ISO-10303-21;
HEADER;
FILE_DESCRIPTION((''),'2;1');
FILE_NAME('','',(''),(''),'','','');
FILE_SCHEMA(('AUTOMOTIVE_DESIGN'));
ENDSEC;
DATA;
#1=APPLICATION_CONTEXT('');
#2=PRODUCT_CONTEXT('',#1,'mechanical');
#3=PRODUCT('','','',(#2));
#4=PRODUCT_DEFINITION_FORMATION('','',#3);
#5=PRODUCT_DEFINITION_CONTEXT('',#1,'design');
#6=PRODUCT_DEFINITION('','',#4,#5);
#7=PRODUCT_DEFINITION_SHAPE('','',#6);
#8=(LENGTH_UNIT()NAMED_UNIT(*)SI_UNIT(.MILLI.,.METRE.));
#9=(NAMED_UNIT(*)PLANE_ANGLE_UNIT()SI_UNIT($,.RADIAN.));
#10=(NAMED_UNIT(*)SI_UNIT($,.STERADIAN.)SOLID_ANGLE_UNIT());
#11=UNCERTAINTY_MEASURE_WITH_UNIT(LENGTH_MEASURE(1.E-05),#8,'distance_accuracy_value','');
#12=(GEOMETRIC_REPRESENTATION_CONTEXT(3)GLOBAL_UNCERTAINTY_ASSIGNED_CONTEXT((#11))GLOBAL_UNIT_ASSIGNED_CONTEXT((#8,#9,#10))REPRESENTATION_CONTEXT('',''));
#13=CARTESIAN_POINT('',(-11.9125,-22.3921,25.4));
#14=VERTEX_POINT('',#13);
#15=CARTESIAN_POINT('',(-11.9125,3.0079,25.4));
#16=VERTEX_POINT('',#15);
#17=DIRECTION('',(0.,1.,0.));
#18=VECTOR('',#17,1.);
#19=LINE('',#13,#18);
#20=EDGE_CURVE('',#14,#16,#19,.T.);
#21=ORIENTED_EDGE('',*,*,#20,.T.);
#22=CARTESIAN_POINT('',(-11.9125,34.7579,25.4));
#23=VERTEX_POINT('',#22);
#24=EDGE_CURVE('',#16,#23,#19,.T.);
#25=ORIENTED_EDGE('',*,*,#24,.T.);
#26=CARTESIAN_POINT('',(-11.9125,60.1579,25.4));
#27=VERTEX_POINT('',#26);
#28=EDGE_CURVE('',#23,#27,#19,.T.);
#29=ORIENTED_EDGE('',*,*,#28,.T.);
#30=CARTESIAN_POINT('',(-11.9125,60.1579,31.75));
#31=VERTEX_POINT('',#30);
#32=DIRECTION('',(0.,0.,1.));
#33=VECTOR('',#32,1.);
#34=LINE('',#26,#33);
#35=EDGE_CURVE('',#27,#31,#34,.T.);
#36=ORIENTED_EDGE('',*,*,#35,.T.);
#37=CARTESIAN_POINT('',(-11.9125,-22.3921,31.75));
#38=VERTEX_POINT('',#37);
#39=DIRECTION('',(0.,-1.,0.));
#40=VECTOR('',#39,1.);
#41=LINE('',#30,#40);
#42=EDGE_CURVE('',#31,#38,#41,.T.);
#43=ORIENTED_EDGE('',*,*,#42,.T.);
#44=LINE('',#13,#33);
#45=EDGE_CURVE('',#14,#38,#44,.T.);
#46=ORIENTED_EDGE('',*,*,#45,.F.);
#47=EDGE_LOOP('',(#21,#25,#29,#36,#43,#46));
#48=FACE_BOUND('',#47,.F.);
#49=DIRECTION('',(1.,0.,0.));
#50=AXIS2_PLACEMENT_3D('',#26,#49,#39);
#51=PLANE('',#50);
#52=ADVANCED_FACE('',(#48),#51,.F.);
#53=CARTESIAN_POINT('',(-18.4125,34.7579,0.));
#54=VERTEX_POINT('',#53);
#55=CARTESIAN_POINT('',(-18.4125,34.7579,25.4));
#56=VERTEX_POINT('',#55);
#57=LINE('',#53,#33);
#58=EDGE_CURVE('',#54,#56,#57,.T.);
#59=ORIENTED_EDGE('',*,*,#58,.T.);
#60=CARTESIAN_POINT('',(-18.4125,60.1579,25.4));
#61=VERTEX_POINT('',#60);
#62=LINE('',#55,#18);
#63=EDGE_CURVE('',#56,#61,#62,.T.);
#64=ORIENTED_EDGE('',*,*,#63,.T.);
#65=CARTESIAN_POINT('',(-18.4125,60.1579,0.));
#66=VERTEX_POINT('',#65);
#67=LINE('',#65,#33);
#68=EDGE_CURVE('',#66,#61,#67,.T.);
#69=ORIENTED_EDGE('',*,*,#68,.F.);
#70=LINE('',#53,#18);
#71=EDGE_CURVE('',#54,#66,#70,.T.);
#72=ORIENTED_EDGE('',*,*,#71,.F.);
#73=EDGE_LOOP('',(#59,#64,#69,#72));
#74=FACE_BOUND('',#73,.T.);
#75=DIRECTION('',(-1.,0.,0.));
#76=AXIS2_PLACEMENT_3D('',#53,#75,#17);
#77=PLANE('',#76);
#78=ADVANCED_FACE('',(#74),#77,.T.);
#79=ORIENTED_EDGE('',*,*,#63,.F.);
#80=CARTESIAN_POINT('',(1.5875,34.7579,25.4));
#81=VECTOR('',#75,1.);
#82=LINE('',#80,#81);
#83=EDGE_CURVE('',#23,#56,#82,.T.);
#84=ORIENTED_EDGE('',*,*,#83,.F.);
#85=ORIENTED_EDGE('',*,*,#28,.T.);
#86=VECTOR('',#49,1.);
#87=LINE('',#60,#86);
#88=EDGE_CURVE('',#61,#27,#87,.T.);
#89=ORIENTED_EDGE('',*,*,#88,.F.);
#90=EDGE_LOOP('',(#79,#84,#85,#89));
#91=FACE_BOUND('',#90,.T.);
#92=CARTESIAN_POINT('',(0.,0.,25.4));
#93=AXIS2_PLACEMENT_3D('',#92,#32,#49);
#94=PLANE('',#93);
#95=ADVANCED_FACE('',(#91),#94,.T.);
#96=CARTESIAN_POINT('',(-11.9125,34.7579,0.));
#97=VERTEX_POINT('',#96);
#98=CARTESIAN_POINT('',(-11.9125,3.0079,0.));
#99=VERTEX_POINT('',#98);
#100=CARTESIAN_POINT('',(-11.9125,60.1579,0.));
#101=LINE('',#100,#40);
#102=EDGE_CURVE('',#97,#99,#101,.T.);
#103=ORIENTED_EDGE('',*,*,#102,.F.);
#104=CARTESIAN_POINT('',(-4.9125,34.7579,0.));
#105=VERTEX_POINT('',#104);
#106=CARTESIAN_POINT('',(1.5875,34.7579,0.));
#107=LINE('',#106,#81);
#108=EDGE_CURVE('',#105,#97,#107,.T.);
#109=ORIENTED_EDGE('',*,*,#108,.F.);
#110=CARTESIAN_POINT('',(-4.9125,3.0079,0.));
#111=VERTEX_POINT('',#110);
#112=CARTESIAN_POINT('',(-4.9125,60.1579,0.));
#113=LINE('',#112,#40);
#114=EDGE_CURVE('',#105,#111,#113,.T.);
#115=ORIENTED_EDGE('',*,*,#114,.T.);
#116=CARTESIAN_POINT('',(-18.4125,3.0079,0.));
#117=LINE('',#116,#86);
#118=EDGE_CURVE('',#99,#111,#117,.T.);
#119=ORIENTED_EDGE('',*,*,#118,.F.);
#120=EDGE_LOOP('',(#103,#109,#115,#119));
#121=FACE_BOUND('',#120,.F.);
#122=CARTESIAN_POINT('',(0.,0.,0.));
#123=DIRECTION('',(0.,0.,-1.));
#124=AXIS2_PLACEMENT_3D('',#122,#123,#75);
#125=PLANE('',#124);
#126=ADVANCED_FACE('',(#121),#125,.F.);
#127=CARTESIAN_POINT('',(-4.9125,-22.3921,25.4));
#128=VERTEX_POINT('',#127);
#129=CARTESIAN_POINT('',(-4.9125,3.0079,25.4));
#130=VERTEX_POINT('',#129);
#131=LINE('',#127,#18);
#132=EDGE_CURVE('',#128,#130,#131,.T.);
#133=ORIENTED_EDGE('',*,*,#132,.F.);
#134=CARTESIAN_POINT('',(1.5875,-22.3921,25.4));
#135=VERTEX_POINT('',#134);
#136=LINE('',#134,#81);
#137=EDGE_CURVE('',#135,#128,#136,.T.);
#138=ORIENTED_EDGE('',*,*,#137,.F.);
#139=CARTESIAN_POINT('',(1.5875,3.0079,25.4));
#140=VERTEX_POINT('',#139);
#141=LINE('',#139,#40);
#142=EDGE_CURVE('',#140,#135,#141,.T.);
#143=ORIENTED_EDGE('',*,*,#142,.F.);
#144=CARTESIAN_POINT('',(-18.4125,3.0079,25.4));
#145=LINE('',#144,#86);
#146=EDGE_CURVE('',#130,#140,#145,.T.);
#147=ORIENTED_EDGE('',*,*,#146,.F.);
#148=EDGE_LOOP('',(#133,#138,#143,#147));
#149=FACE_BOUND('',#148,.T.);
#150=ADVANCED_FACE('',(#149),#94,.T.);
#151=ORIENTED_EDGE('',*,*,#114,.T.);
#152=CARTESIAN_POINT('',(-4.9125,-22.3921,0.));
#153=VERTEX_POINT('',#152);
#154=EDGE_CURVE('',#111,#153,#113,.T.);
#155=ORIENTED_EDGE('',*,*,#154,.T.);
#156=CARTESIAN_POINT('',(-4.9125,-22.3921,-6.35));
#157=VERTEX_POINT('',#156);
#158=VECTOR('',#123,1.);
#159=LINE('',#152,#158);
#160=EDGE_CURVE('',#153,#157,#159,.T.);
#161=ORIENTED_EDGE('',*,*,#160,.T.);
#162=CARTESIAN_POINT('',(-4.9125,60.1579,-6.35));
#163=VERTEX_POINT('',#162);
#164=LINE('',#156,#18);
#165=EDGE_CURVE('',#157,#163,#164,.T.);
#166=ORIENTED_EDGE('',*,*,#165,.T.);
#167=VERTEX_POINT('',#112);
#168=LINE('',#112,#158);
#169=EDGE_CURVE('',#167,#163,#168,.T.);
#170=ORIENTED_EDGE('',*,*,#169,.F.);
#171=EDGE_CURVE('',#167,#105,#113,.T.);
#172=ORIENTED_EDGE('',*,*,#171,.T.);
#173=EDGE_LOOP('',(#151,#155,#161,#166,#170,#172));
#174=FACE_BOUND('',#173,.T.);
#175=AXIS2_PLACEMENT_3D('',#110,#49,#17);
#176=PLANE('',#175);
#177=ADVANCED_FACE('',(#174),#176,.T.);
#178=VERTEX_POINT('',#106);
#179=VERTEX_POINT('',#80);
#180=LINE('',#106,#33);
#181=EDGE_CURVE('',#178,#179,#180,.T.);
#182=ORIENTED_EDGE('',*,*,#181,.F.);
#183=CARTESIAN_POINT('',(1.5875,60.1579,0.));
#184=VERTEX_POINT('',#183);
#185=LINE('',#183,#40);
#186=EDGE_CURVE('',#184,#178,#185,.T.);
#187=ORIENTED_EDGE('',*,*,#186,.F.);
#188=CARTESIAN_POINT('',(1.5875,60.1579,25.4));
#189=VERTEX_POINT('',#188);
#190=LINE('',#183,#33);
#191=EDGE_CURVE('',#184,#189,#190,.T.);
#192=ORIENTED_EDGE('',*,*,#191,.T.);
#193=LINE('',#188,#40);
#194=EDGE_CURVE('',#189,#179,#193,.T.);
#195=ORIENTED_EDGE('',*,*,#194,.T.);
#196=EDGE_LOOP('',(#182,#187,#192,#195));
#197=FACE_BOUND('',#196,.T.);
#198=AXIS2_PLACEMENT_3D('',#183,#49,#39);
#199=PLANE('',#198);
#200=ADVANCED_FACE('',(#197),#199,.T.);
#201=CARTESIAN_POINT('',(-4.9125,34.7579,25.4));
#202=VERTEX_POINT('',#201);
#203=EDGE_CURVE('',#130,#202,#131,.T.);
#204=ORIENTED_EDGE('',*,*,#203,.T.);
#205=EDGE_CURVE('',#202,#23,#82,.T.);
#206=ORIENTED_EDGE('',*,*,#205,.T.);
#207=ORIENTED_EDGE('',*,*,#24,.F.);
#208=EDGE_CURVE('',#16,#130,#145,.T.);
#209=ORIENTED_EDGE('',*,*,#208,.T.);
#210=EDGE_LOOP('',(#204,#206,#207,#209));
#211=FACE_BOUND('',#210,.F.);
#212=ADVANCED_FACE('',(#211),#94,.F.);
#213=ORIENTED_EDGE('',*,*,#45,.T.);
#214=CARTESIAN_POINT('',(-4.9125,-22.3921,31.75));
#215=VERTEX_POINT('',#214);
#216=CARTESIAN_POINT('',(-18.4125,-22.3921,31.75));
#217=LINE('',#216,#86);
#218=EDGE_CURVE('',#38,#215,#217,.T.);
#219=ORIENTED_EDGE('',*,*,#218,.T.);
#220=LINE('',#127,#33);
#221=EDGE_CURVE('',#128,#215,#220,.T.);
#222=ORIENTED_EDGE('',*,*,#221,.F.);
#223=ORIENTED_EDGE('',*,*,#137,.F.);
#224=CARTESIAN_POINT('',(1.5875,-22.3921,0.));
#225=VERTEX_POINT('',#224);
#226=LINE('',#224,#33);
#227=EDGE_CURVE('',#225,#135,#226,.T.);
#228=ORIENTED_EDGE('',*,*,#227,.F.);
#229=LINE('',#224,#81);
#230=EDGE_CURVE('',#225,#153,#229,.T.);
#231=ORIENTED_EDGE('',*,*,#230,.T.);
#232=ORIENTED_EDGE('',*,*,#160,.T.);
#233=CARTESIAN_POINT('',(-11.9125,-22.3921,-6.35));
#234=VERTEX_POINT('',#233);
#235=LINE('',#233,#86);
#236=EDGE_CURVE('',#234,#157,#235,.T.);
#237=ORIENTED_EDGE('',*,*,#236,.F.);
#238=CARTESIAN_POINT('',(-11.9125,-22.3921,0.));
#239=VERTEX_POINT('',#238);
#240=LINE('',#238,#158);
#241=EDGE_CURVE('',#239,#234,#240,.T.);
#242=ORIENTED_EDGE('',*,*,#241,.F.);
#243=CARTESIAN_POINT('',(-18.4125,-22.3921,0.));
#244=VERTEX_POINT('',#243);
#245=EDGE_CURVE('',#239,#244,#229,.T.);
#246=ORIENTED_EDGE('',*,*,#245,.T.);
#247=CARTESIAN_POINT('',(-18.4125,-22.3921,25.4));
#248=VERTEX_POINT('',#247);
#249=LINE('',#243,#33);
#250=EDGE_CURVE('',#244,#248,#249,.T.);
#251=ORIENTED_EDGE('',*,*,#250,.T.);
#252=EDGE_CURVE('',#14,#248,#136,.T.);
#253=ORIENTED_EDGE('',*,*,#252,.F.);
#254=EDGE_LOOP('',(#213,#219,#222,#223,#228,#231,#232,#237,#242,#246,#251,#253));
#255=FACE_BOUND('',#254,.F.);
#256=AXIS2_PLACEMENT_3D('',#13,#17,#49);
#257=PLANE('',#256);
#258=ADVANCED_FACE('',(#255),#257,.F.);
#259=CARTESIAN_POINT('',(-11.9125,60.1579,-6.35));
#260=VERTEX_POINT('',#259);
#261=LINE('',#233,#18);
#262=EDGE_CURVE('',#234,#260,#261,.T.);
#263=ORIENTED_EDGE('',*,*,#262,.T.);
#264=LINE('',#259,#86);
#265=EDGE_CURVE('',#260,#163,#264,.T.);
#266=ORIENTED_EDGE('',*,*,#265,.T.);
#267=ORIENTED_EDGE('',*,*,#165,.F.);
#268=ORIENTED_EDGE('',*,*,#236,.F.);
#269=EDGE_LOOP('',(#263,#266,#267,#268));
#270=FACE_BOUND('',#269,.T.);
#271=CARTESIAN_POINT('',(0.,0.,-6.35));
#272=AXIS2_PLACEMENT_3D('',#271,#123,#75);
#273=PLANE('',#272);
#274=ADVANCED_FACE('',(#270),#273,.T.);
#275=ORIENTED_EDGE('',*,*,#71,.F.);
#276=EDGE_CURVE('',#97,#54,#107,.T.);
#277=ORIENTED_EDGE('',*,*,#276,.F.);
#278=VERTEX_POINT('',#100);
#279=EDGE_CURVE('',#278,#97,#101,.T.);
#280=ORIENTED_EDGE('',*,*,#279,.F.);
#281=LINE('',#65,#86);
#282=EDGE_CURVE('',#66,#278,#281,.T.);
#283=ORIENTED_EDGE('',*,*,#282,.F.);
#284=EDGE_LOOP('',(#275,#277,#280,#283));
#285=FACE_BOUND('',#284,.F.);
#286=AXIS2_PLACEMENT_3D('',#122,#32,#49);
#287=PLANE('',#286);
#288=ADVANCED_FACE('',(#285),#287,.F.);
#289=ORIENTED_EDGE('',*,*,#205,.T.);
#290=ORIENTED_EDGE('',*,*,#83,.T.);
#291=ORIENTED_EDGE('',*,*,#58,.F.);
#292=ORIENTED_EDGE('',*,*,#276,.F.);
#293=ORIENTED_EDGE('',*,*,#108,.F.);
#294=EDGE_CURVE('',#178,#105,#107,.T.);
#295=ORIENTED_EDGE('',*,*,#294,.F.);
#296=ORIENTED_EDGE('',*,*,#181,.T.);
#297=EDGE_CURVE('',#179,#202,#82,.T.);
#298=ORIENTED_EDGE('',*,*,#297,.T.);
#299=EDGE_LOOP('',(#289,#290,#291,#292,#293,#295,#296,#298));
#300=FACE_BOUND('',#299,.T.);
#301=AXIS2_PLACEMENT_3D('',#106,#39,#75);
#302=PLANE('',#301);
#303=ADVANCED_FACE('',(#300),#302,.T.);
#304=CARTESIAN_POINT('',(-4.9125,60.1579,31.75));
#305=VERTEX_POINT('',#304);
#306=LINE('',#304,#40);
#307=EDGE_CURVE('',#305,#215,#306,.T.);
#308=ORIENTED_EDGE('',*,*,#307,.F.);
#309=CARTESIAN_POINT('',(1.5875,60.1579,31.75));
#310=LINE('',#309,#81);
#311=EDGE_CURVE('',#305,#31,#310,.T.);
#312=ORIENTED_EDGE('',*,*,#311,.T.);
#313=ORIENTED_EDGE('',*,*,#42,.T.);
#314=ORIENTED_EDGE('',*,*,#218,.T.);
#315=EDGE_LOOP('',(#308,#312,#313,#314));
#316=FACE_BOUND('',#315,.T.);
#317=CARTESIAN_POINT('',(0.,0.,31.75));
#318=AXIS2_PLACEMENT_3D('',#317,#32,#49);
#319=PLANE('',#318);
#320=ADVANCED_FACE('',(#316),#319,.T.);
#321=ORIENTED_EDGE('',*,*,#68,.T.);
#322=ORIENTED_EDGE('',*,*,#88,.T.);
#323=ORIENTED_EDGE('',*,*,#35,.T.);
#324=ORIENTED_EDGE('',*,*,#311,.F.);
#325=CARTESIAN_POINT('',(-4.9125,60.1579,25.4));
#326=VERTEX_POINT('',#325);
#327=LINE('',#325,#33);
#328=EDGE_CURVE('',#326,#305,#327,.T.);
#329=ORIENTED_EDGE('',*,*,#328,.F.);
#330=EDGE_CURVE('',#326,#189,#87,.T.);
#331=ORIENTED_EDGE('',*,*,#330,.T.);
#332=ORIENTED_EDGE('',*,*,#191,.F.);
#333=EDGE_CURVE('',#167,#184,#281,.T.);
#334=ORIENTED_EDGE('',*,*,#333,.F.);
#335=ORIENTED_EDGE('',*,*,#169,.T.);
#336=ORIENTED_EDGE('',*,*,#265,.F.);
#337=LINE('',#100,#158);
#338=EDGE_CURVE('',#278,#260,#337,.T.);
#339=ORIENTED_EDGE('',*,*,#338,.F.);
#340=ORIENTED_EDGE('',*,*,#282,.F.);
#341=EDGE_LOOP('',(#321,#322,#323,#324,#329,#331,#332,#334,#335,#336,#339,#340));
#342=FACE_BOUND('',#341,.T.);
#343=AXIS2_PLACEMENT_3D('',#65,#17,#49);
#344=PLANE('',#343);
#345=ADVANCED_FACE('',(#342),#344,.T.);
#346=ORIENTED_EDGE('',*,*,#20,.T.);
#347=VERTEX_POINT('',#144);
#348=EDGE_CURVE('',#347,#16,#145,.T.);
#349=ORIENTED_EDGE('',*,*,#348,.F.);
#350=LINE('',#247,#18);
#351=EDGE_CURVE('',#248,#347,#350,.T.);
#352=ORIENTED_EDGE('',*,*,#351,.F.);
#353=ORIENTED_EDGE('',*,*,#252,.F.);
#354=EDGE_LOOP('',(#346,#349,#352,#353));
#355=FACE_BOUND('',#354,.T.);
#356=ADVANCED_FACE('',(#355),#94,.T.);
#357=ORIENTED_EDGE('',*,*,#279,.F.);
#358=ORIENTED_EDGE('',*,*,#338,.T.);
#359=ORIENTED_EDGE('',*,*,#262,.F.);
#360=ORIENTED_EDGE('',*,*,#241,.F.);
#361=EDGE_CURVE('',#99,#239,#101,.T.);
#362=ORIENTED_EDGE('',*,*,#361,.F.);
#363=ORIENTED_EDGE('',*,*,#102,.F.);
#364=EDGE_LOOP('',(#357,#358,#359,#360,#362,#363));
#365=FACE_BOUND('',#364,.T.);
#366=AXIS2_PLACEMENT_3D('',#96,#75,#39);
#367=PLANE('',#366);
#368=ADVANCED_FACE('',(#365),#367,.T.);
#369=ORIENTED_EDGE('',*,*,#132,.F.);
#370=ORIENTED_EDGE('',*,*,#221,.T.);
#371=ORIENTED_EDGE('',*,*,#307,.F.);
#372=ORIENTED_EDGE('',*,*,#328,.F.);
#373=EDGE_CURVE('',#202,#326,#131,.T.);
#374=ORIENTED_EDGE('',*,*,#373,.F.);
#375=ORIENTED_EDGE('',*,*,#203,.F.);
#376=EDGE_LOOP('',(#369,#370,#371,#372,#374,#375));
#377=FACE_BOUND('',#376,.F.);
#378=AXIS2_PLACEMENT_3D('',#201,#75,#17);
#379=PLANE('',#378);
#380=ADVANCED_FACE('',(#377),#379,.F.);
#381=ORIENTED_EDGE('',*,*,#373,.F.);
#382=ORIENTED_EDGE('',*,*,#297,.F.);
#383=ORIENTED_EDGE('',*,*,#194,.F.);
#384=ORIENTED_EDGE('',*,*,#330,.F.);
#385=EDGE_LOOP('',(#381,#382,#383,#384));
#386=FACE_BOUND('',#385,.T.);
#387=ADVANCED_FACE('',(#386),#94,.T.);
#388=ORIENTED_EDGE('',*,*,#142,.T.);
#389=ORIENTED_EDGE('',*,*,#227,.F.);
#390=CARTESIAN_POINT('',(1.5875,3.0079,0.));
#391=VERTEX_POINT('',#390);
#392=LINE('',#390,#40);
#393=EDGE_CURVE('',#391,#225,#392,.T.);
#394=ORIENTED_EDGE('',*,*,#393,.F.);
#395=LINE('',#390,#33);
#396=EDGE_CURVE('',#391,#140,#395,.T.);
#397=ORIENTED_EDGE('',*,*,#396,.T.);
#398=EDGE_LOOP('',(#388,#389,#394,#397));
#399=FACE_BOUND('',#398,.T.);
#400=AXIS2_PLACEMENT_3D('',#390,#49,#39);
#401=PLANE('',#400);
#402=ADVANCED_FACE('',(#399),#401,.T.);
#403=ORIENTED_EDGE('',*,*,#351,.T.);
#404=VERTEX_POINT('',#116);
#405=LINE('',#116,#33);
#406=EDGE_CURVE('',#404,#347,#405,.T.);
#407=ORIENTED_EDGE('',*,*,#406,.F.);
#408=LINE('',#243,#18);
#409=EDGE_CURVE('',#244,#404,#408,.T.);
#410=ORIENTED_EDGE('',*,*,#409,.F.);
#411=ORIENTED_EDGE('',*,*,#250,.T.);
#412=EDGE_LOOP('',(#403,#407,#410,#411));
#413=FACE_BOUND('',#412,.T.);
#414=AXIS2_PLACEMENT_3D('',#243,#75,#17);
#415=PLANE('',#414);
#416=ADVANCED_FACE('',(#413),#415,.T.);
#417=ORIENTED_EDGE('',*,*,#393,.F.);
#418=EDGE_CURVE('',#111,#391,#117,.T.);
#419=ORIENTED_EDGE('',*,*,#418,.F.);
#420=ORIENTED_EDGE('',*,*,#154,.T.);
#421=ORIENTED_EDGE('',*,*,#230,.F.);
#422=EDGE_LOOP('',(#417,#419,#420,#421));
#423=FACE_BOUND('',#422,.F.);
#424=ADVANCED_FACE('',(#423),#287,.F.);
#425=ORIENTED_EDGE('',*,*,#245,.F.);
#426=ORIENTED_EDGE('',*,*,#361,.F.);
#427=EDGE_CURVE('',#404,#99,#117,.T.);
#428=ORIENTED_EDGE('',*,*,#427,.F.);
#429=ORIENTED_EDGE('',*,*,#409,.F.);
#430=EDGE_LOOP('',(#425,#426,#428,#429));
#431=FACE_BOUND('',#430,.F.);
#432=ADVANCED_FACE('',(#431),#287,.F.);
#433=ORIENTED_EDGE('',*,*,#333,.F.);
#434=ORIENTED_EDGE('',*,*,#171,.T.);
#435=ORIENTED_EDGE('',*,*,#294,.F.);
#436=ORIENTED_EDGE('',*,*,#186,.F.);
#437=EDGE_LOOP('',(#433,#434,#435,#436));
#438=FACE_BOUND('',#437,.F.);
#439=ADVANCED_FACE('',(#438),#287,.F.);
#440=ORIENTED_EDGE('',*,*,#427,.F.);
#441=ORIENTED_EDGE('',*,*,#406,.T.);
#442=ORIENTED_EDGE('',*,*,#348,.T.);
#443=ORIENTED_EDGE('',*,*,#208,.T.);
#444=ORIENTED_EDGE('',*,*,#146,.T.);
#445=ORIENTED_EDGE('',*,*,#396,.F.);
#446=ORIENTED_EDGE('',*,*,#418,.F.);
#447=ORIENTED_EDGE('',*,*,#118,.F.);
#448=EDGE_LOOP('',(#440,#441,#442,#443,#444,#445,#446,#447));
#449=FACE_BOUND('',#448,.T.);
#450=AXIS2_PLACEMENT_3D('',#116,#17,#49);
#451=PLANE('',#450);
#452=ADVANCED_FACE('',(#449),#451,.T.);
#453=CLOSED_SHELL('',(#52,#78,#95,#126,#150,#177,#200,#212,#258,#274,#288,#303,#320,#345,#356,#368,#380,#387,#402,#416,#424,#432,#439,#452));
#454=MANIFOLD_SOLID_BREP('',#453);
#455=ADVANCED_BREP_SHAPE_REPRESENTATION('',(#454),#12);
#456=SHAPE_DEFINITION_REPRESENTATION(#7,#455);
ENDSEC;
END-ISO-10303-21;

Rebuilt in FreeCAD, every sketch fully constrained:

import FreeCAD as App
import Part
import Sketcher

V = App.Vector
Q = App.Units.Quantity


def add_polygon(sketch, points):
    """Adds a closed chain of lines whose ends are joined by coincident constraints."""
    first, n = sketch.GeometryCount, len(points)
    for a, b in zip(points, points[1:] + points[:1]):
        sketch.addGeometry(Part.LineSegment(App.Vector(*a, 0), App.Vector(*b, 0)), False)
    for i in range(n):
        sketch.addConstraint(Sketcher.Constraint("Coincident", first + i, 2, first + (i + 1) % n, 1))

doc = App.newDocument("Part")
body = doc.addObject("PartDesign::Body", "Body")
body.AllowCompound = True

sketch1 = doc.addObject("Sketcher::SketchObject", "Sketch")
body.addObject(sketch1)
sketch1.AttachmentSupport = (doc.XY_Plane, [""])
sketch1.MapMode = "FlatFace"
add_polygon(sketch1, [(2, 60), (-18, 60), (-18, 35), (2, 35)])
add_polygon(sketch1, [(2, 3), (-18, 3), (-18, -22), (2, -22)])
sketch1.addConstraint(Sketcher.Constraint("Horizontal", 0))
sketch1.addConstraint(Sketcher.Constraint("Vertical", 1))
sketch1.addConstraint(Sketcher.Constraint("Horizontal", 2))
sketch1.addConstraint(Sketcher.Constraint("Vertical", 3))
sketch1.addConstraint(Sketcher.Constraint("Horizontal", 4))
sketch1.addConstraint(Sketcher.Constraint("Vertical", 5))
sketch1.addConstraint(Sketcher.Constraint("Horizontal", 6))
sketch1.addConstraint(Sketcher.Constraint("Vertical", 7))
sketch1.addConstraint(Sketcher.Constraint("Vertical", 1, 2, 4, 2))
sketch1.addConstraint(Sketcher.Constraint("Vertical", 3, 2, 6, 2))
sketch1.addConstraint(Sketcher.Constraint("Equal", 3, 5))
sketch1.addConstraint(Sketcher.Constraint("DistanceY", 1, 2, 1, 1, Q("1 in")))
sketch1.addConstraint(Sketcher.Constraint("DistanceY", 4, 2, 1, 2, Q("1.25 in")))
sketch1.addConstraint(Sketcher.Constraint("DistanceX", 0, 2, 0, 1, Q("0.7874 in")))
sketch1.addConstraint(Sketcher.Constraint("DistanceX", -1, 1, 2, 2, Q("0.0625 in")))
sketch1.addConstraint(Sketcher.Constraint("DistanceY", -1, 1, 0, 2, Q("60.158 mm")))
pad1 = doc.addObject("PartDesign::Pad", "Pad")
body.addObject(pad1)
pad1.Profile = sketch1
pad1.Length = Q("1 in")

sketch2 = doc.addObject("Sketcher::SketchObject", "Sketch001")
body.addObject(sketch2)
sketch2.AttachmentSupport = (doc.XY_Plane, [""])
sketch2.MapMode = "FlatFace"
sketch2.AttachmentOffset = App.Placement(V(0, 0, 1 * 25.4), App.Rotation())
add_polygon(sketch2, [(-5, 60), (-12, 60), (-12, -22), (-5, -22)])
sketch2.addConstraint(Sketcher.Constraint("Horizontal", 0))
sketch2.addConstraint(Sketcher.Constraint("Vertical", 1))
sketch2.addConstraint(Sketcher.Constraint("Horizontal", 2))
sketch2.addConstraint(Sketcher.Constraint("Vertical", 3))
sketch2.addConstraint(Sketcher.Constraint("DistanceX", 0, 2, 0, 1, Q("0.2756 in")))
sketch2.addConstraint(Sketcher.Constraint("DistanceY", 1, 2, 1, 1, Q("3.25 in")))
sketch2.addConstraint(Sketcher.Constraint("DistanceX", 0, 2, -1, 1, Q("0.469 in")))
sketch2.addConstraint(Sketcher.Constraint("DistanceY", -1, 1, 0, 2, Q("60.158 mm")))
pad2 = doc.addObject("PartDesign::Pad", "Pad001")
body.addObject(pad2)
pad2.Profile = sketch2
pad2.Length = Q("0.25 in")

sketch3 = doc.addObject("Sketcher::SketchObject", "Sketch002")
body.addObject(sketch3)
sketch3.AttachmentSupport = (doc.XY_Plane, [""])
sketch3.MapMode = "FlatFace"
add_polygon(sketch3, [(-5, -22), (-12, -22), (-12, 60), (-5, 60)])
sketch3.addConstraint(Sketcher.Constraint("Horizontal", 0))
sketch3.addConstraint(Sketcher.Constraint("Vertical", 1))
sketch3.addConstraint(Sketcher.Constraint("Horizontal", 2))
sketch3.addConstraint(Sketcher.Constraint("Vertical", 3))
sketch3.addConstraint(Sketcher.Constraint("DistanceY", 1, 1, 1, 2, Q("3.25 in")))
sketch3.addConstraint(Sketcher.Constraint("DistanceX", 0, 2, 0, 1, Q("0.2756 in")))
sketch3.addConstraint(Sketcher.Constraint("DistanceX", 0, 2, -1, 1, Q("0.469 in")))
sketch3.addConstraint(Sketcher.Constraint("DistanceY", 0, 2, -1, 1, Q("22.392 mm")))
pad3 = doc.addObject("PartDesign::Pad", "Pad002")
body.addObject(pad3)
pad3.Profile = sketch3
pad3.Length = Q("0.25 in")
pad3.Reversed = True

doc.recompute()
